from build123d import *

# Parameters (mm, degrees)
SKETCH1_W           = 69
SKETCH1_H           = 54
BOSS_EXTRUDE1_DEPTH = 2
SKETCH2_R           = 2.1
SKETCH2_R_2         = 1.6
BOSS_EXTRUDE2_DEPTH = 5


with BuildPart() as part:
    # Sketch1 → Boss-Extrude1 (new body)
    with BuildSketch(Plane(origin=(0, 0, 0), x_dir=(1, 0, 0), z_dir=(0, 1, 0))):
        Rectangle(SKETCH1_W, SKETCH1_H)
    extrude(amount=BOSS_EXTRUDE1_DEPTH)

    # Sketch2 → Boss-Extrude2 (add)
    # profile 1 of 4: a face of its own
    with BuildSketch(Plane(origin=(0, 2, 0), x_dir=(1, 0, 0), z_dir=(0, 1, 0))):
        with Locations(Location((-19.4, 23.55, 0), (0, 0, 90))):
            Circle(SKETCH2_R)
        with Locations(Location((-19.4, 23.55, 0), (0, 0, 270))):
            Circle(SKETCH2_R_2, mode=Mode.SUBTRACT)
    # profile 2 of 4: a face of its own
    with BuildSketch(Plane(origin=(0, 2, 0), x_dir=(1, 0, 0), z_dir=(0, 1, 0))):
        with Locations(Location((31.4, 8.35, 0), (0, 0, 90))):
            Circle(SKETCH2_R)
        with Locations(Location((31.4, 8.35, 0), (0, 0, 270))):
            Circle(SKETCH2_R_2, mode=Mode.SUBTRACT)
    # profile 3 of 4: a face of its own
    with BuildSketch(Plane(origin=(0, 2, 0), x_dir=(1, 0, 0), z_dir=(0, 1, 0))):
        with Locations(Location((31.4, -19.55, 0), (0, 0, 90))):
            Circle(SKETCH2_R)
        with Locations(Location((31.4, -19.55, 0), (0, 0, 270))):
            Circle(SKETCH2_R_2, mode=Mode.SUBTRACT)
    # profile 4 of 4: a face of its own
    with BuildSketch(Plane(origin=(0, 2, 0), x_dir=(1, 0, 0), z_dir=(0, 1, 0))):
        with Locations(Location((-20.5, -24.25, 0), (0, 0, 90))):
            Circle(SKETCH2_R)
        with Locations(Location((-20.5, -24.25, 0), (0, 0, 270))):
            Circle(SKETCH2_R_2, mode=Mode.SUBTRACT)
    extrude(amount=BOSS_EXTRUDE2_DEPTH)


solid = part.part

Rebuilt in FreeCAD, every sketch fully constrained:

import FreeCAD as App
import Part
import Sketcher
Q = App.Units.Quantity


def add_polygon(sketch, points):
    """Adds a closed chain of lines whose ends are joined by coincident constraints."""
    first, n = sketch.GeometryCount, len(points)
    for a, b in zip(points, points[1:] + points[:1]):
        sketch.addGeometry(Part.LineSegment(App.Vector(*a, 0), App.Vector(*b, 0)), False)
    for i in range(n):
        sketch.addConstraint(Sketcher.Constraint("Coincident", first + i, 2, first + (i + 1) % n, 1))

doc = App.newDocument("Part")
params = doc.addObject("Spreadsheet::Sheet", "Params")
for row, (alias, value) in enumerate([
    ("sketch1_width", "69 mm"),
    ("sketch1_height", "54 mm"),
    ("pad1_length", "2 mm"),
    ("sketch2_diameter", "4.2 mm"),
    ("sketch2_diameter2", "3.2 mm"),
    ("pad2_length", "5 mm"),
], start=1):
    params.set(f"A{row}", alias)
    params.set(f"B{row}", "=" + value)
    params.setAlias(f"B{row}", alias)

body = doc.addObject("PartDesign::Body", "Body")

# Sketch on XZ plane
sketch1 = body.newObject("Sketcher::SketchObject", "Sketch")
sketch1.AttachmentSupport = (doc.getObject("XZ_Plane"), [""])
sketch1.MapMode = "FlatFace"
add_polygon(sketch1, [(-34.5, -27), (-34.5, 27), (34.5, 27), (34.5, -27)])  # lines 0-3
sketch1.addConstraint([
    Sketcher.Constraint("Vertical", 0),
    Sketcher.Constraint("Horizontal", 1),
    Sketcher.Constraint("Vertical", 2),
    Sketcher.Constraint("Horizontal", 3),
    Sketcher.Constraint("Symmetric", 0, 2, 2, 2, -1, 1),
    Sketcher.Constraint("DistanceX", 1, 1, 1, 2, Q("69 mm")),
    Sketcher.Constraint("DistanceY", 0, 1, 0, 2, Q("54 mm")),
])
sketch1.setExpression("Constraints[9]", "Params.sketch1_width")
sketch1.setExpression("Constraints[10]", "Params.sketch1_height")
pad1 = body.newObject("PartDesign::Pad", "Pad")
pad1.Profile = sketch1
pad1.setExpression("Length", "Params.pad1_length")
pad1.Reversed = True

# Sketch on XZ plane
sketch2 = body.newObject("Sketcher::SketchObject", "Sketch001")
sketch2.AttachmentSupport = (doc.getObject("XZ_Plane"), [""])
sketch2.MapMode = "FlatFace"
sketch2.AttachmentOffset = App.Placement(App.Vector(0, 0, -2), App.Rotation())
sketch2.addGeometry([
    Part.Circle(App.Vector(-19.4, -23.55, 0), App.Vector(0, 0, 1), 2.1),  # 0
    Part.Circle(App.Vector(-19.4, -23.55, 0), App.Vector(0, 0, 1), 1.6),  # 1
    Part.Circle(App.Vector(31.4, -8.35, 0), App.Vector(0, 0, 1), 2.1),  # 2
    Part.Circle(App.Vector(31.4, -8.35, 0), App.Vector(0, 0, 1), 1.6),  # 3
    Part.Circle(App.Vector(31.4, 19.55, 0), App.Vector(0, 0, 1), 2.1),  # 4
    Part.Circle(App.Vector(31.4, 19.55, 0), App.Vector(0, 0, 1), 1.6),  # 5
    Part.Circle(App.Vector(-20.5, 24.25, 0), App.Vector(0, 0, 1), 2.1),  # 6
    Part.Circle(App.Vector(-20.5, 24.25, 0), App.Vector(0, 0, 1), 1.6),  # 7
], False)
sketch2.addConstraint([
    Sketcher.Constraint("Coincident", 1, 3, 0, 3),
    Sketcher.Constraint("Coincident", 3, 3, 2, 3),
    Sketcher.Constraint("Coincident", 5, 3, 4, 3),
    Sketcher.Constraint("Coincident", 7, 3, 6, 3),
    Sketcher.Constraint("Equal", 0, 2),
    Sketcher.Constraint("Equal", 1, 3),
    Sketcher.Constraint("Equal", 2, 4),
    Sketcher.Constraint("Equal", 3, 5),
    Sketcher.Constraint("Equal", 4, 6),
    Sketcher.Constraint("Equal", 5, 7),
    Sketcher.Constraint("Vertical", 3, 3, 4, 3),
    Sketcher.Constraint("Diameter", 0, Q("4.2 mm")),
    Sketcher.Constraint("Diameter", 1, Q("3.2 mm")),
    Sketcher.Constraint("DistanceX", 0, 3, -1, 1, Q("19.4 mm")),
    Sketcher.Constraint("DistanceX", -1, 1, 2, 3, Q("31.4 mm")),
    Sketcher.Constraint("DistanceX", 6, 3, -1, 1, Q("20.5 mm")),
    Sketcher.Constraint("DistanceY", 0, 3, 2, 3, Q("15.2 mm")),
    Sketcher.Constraint("DistanceY", 2, 3, 4, 3, Q("27.9 mm")),
    Sketcher.Constraint("DistanceY", 0, 3, 6, 3, Q("47.8 mm")),
    Sketcher.Constraint("DistanceY", 0, 3, -1, 1, Q("23.55 mm")),
])
sketch2.setExpression("Constraints[11]", "Params.sketch2_diameter")
sketch2.setExpression("Constraints[12]", "Params.sketch2_diameter2")
pad2 = body.newObject("PartDesign::Pad", "Pad001")
pad2.Profile = sketch2
pad2.setExpression("Length", "Params.pad2_length")
pad2.Reversed = True

doc.recompute()
